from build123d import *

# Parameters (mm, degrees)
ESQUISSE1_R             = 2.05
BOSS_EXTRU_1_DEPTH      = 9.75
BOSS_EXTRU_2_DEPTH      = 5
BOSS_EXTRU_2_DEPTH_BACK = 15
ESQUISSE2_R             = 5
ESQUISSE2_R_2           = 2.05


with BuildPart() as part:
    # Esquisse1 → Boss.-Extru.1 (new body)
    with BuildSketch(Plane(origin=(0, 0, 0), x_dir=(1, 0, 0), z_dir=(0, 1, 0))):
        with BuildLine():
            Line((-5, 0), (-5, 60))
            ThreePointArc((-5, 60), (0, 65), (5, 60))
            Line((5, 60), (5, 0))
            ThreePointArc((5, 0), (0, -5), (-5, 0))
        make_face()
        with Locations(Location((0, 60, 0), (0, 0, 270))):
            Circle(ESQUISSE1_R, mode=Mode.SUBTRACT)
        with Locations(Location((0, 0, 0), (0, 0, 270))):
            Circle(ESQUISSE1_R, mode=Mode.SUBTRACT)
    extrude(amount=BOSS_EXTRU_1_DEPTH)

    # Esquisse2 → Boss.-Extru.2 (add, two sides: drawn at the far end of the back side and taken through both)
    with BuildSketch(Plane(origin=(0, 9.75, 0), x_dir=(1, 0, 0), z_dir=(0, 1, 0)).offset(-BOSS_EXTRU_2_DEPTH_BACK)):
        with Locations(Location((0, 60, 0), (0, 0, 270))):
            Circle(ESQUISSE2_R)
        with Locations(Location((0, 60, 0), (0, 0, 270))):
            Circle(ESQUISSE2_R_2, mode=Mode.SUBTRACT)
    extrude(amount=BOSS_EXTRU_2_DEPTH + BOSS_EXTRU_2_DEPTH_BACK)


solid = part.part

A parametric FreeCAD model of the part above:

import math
import FreeCAD as App
import Part
import Sketcher

doc = App.newDocument("Part")
body = doc.addObject("PartDesign::Body", "Body")

# Sketch on XZ plane
sketch1 = body.newObject("Sketcher::SketchObject", "Sketch")
sketch1.AttachmentSupport = (doc.getObject("XZ_Plane"), [""])
sketch1.MapMode = "FlatFace"
sketch1.addGeometry(Part.LineSegment(App.Vector(-5, -60, 0), App.Vector(-5, 0, 0)), False)
sketch1.addGeometry(Part.ArcOfCircle(Part.Circle(App.Vector(0, 0, 0), App.Vector(0, 0, 1), 5), math.radians(0), math.radians(180)), False)
sketch1.addGeometry(Part.LineSegment(App.Vector(5, 0, 0), App.Vector(5, -60, 0)), False)
sketch1.addGeometry(Part.ArcOfCircle(Part.Circle(App.Vector(0, -60, 0), App.Vector(0, 0, 1), 5), math.radians(180), math.radians(360)), False)
sketch1.addGeometry(Part.Circle(App.Vector(0, 0, 0), App.Vector(0, 0, 1), 2.05), False)
sketch1.addGeometry(Part.Circle(App.Vector(0, -60, 0), App.Vector(0, 0, 1), 2.05), False)
sketch1.addConstraint(Sketcher.Constraint("Tangent", 0, 2, 1, 2))
sketch1.addConstraint(Sketcher.Constraint("Tangent", 1, 1, 2, 1))
sketch1.addConstraint(Sketcher.Constraint("Tangent", 2, 2, 3, 2))
sketch1.addConstraint(Sketcher.Constraint("Tangent", 3, 1, 0, 1))
sketch1.addConstraint(Sketcher.Constraint("Vertical", 0))
sketch1.addConstraint(Sketcher.Constraint("Vertical", 2))
sketch1.addConstraint(Sketcher.Constraint("Coincident", 1, 3, -1, 1))
sketch1.addConstraint(Sketcher.Constraint("Coincident", 4, 3, -1, 1))
sketch1.addConstraint(Sketcher.Constraint("Coincident", 5, 3, 3, 3))
sketch1.addConstraint(Sketcher.Constraint("Equal", 4, 5))
sketch1.addConstraint(Sketcher.Constraint("Radius", 1, 5.0))
sketch1.addConstraint(Sketcher.Constraint("Diameter", 4, 4.1))
sketch1.addConstraint(Sketcher.Constraint("DistanceY", 0, 1, 0, 2, 60.0))
pad1 = body.newObject("PartDesign::Pad", "Pad")
pad1.Profile = sketch1
pad1.Length = 9.75
pad1.Reversed = True

# Sketch on XZ plane
sketch2 = body.newObject("Sketcher::SketchObject", "Sketch001")
sketch2.AttachmentSupport = (doc.getObject("XZ_Plane"), [""])
sketch2.MapMode = "FlatFace"
sketch2.AttachmentOffset = App.Placement(App.Vector(0, 0, -9.75), App.Rotation())
sketch2.addGeometry(Part.Circle(App.Vector(0, -60, 0), App.Vector(0, 0, 1), 5), False)
sketch2.addGeometry(Part.Circle(App.Vector(0, -60, 0), App.Vector(0, 0, 1), 2.05), False)
sketch2.addConstraint(Sketcher.Constraint("Coincident", 1, 3, 0, 3))
sketch2.addConstraint(Sketcher.Constraint("PointOnObject", 0, 3, -2))
sketch2.addConstraint(Sketcher.Constraint("Diameter", 0, 10.0))
sketch2.addConstraint(Sketcher.Constraint("Diameter", 1, 4.1))
sketch2.addConstraint(Sketcher.Constraint("DistanceY", 0, 3, -1, 1, 60.0))
pad2 = body.newObject("PartDesign::Pad", "Pad001")
pad2.Profile = sketch2
pad2.Type = "TwoLengths"
pad2.Length = 5
pad2.Length2 = 15
pad2.Reversed = True

doc.recompute()
